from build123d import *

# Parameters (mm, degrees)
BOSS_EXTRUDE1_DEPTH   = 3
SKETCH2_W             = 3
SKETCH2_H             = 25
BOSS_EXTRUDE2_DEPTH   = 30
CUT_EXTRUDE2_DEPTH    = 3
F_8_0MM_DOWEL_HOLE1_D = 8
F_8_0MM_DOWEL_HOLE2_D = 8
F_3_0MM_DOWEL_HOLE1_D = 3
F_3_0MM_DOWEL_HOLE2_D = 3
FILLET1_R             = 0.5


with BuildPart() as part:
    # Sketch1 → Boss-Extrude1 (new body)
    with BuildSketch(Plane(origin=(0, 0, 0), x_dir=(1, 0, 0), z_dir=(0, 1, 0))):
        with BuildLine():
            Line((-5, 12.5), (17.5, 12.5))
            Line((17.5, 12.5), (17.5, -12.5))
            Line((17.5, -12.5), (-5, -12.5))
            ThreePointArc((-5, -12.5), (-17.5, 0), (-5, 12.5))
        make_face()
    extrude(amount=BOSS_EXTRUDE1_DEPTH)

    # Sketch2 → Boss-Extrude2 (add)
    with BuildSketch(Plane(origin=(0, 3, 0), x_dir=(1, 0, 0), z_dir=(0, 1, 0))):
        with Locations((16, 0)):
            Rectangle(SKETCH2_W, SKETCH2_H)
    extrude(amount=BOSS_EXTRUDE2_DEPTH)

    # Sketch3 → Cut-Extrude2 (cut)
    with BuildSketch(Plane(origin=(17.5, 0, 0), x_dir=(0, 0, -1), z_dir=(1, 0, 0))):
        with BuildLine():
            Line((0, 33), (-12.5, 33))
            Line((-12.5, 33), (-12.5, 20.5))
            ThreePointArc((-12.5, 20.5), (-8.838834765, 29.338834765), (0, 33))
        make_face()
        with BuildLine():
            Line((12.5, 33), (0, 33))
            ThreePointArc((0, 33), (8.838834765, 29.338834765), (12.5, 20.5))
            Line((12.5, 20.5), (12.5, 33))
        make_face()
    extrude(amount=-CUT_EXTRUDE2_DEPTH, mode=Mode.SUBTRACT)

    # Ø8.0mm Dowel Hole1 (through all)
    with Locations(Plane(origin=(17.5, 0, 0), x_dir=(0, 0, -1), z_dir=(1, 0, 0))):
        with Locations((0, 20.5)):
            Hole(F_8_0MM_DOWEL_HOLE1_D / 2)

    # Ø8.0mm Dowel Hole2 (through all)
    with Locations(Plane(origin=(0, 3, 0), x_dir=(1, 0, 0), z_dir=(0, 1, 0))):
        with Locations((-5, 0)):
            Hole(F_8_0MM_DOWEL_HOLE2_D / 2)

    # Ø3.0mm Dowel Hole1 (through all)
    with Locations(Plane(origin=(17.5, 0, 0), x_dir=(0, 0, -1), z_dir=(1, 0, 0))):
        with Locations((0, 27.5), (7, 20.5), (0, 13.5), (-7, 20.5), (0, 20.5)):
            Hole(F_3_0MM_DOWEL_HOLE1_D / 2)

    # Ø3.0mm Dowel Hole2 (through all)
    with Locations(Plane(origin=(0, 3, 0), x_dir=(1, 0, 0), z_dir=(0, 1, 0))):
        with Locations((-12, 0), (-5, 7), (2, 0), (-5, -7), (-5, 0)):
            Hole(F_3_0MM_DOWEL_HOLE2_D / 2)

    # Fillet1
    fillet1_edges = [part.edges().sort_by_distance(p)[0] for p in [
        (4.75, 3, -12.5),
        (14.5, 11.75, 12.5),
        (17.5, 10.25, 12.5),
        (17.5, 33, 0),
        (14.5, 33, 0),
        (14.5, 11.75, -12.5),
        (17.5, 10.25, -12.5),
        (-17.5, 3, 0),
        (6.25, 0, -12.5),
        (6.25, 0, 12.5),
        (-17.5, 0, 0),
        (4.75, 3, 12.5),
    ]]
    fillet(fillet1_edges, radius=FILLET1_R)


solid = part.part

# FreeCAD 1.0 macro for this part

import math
import FreeCAD as App
import Part
import Sketcher
from FreeCAD import Vector


def edges_at(feature, points):
    """Names of the edges that pass closest to the given points."""
    edges = feature.Shape.Edges
    near = lambda p: min(range(len(edges)), key=lambda i: edges[i].distToShape(Part.Vertex(*p))[0])
    return sorted({f"Edge{near(p) + 1}" for p in points})

doc = App.newDocument("Part")
params = doc.addObject("Spreadsheet::Sheet", "Params")
for row, (alias, value) in enumerate([
    ("sketch1_radius", "12.5 mm"),
    ("sketch1_width", "22.5 mm"),
    ("pad1_length", "3 mm"),
    ("sketch2_width", "3 mm"),
    ("sketch2_height", "25 mm"),
    ("pad2_length", "30 mm"),
    ("sketch3_radius", "12.5 mm"),
    ("pocket1_length", "3 mm"),
    ("sketch4_diameter", "8 mm"),
    ("hole_diameter", "8 mm"),
    ("sketch5_diameter", "8 mm"),
    ("hole2_diameter", "8 mm"),
    ("sketch6_diameter", "3 mm"),
    ("hole3_diameter", "3 mm"),
    ("sketch7_diameter", "3 mm"),
    ("hole4_diameter", "3 mm"),
    ("fillet_radius", "0.5 mm"),
], start=1):
    params.set(f"A{row}", alias)
    params.set(f"B{row}", "=" + value)
    params.setAlias(f"B{row}", alias)

body = doc.addObject("PartDesign::Body", "Body")

sketch1 = body.newObject("Sketcher::SketchObject", "Sketch")
sketch1.AttachmentSupport = (doc.getObject("XZ_Plane"), [""])
sketch1.MapMode = "FlatFace"
sketch1.addGeometry([
    Part.LineSegment(Vector(18, -12, 0), Vector(-5, -12, 0)),
    Part.ArcOfCircle(Part.Circle(Vector(-5, 0, 0), Vector(0, 0, 1), 12), math.radians(90), math.radians(270)),
    Part.LineSegment(Vector(-5, 12, 0), Vector(18, 12, 0)),
    Part.LineSegment(Vector(18, 12, 0), Vector(18, -12, 0)),
], False)
sketch1.addConstraint([
    Sketcher.Constraint("Tangent", 0, 2, 1, 2),
    Sketcher.Constraint("Tangent", 1, 1, 2, 1),
    Sketcher.Constraint("Coincident", 2, 2, 3, 1),
    Sketcher.Constraint("Coincident", 3, 2, 0, 1),
    Sketcher.Constraint("Horizontal", 0),
    Sketcher.Constraint("Horizontal", 2),
    Sketcher.Constraint("Vertical", 3),
    Sketcher.Constraint("PointOnObject", 1, 3, -1),
    Sketcher.Constraint("Radius", 1, 12.5),
    Sketcher.Constraint("DistanceX", 0, 2, 0, 1, 22.5),
    Sketcher.Constraint("DistanceX", 1, 3, -1, 1, 5.0),
])
sketch1.setExpression("Constraints[8]", "Params.sketch1_radius")
sketch1.setExpression("Constraints[9]", "Params.sketch1_width")
pad1 = body.newObject("PartDesign::Pad", "Pad")
pad1.Profile = sketch1
pad1.setExpression("Length", "Params.pad1_length")
pad1.Reversed = True

sketch2 = body.newObject("Sketcher::SketchObject", "Sketch001")
sketch2.AttachmentSupport = (doc.getObject("XZ_Plane"), [""])
sketch2.MapMode = "FlatFace"
sketch2.AttachmentOffset = App.Placement(Vector(0, 0, -3), App.Rotation())
sketch2.addGeometry([
    Part.LineSegment(Vector(14.5, -12.5, 0), Vector(14.5, 12.5, 0)),
    Part.LineSegment(Vector(14.5, 12.5, 0), Vector(17.5, 12.5, 0)),
    Part.LineSegment(Vector(17.5, 12.5, 0), Vector(17.5, -12.5, 0)),
    Part.LineSegment(Vector(17.5, -12.5, 0), Vector(14.5, -12.5, 0)),
], False)
sketch2.addConstraint([
    Sketcher.Constraint("Coincident", 0, 2, 1, 1),
    Sketcher.Constraint("Coincident", 1, 2, 2, 1),
    Sketcher.Constraint("Coincident", 2, 2, 3, 1),
    Sketcher.Constraint("Coincident", 3, 2, 0, 1),
    Sketcher.Constraint("Vertical", 0),
    Sketcher.Constraint("Horizontal", 1),
    Sketcher.Constraint("Vertical", 2),
    Sketcher.Constraint("Horizontal", 3),
    Sketcher.Constraint("DistanceX", 1, 1, 1, 2, 3.0),
    Sketcher.Constraint("DistanceY", 0, 1, 0, 2, 25.0),
    Sketcher.Constraint("DistanceX", -1, 1, 0, 2, 14.5),
    Sketcher.Constraint("DistanceY", -1, 1, 0, 2, 12.5),
])
sketch2.setExpression("Constraints[8]", "Params.sketch2_width")
sketch2.setExpression("Constraints[9]", "Params.sketch2_height")
pad2 = body.newObject("PartDesign::Pad", "Pad001")
pad2.Profile = sketch2
pad2.setExpression("Length", "Params.pad2_length")
pad2.Reversed = True

sketch3 = body.newObject("Sketcher::SketchObject", "Sketch002")
sketch3.AttachmentSupport = (doc.getObject("YZ_Plane"), [""])
sketch3.MapMode = "FlatFace"
sketch3.AttachmentOffset = App.Placement(Vector(0, 0, 17.5), App.Rotation())
sketch3.addGeometry([
    Part.LineSegment(Vector(33, 0, 0), Vector(33, 12, 0)),
    Part.LineSegment(Vector(33, 12, 0), Vector(20, 12, 0)),
    Part.ArcOfCircle(Part.Circle(Vector(21, 0, 0), Vector(0, 0, 1), 12), math.radians(0), math.radians(90)),
    Part.LineSegment(Vector(33, -12, 0), Vector(33, 0, 0)),
    Part.ArcOfCircle(Part.Circle(Vector(21, 0, 0), Vector(0, 0, 1), 12), math.radians(-90), math.radians(0)),
    Part.LineSegment(Vector(20, -12, 0), Vector(33, -12, 0)),
], False)
sketch3.addConstraint([
    Sketcher.Constraint("Coincident", 0, 2, 1, 1),
    Sketcher.Constraint("Tangent", 1, 2, 2, 2),
    Sketcher.Constraint("Tangent", 2, 1, 0, 1),
    Sketcher.Constraint("Tangent", 3, 2, 4, 2),
    Sketcher.Constraint("Tangent", 4, 1, 5, 1),
    Sketcher.Constraint("Coincident", 5, 2, 3, 1),
    Sketcher.Constraint("Vertical", 0),
    Sketcher.Constraint("Horizontal", 1),
    Sketcher.Constraint("Vertical", 3),
    Sketcher.Constraint("Horizontal", 5),
    Sketcher.Constraint("Coincident", 4, 3, 2, 3),
    Sketcher.Constraint("Equal", 2, 4),
    Sketcher.Constraint("PointOnObject", 2, 3, -1),
    Sketcher.Constraint("Radius", 2, 12.5),
    Sketcher.Constraint("DistanceX", -1, 1, 0, 2, 33.0),
])
sketch3.setExpression("Constraints[13]", "Params.sketch3_radius")
pocket1 = body.newObject("PartDesign::Pocket", "Pocket")
pocket1.Profile = sketch3
pocket1.setExpression("Length", "Params.pocket1_length")

sketch4 = body.newObject("Sketcher::SketchObject", "Sketch003")
sketch4.AttachmentSupport = (doc.getObject("YZ_Plane"), [""])
sketch4.MapMode = "FlatFace"
sketch4.AttachmentOffset = App.Placement(Vector(0, 0, 17.5), App.Rotation())
sketch4.addGeometry(Part.Circle(Vector(20.5, 0, 0), Vector(0, 0, 1), 4), False)
sketch4.addConstraint([
    Sketcher.Constraint("PointOnObject", 0, 3, -1),
    Sketcher.Constraint("Diameter", 0, 8.0),
    Sketcher.Constraint("DistanceX", -1, 1, 0, 3, 20.5),
])
sketch4.setExpression("Constraints[1]", "Params.sketch4_diameter")
doc.recompute()
hole = body.newObject("PartDesign::Hole", "Hole")
hole.Profile = sketch4
hole.ThreadType = "None"
hole.setExpression("Diameter", "Params.hole_diameter")
hole.DepthType = "ThroughAll"

sketch5 = body.newObject("Sketcher::SketchObject", "Sketch004")
sketch5.AttachmentSupport = (doc.getObject("XZ_Plane"), [""])
sketch5.MapMode = "FlatFace"
sketch5.AttachmentOffset = App.Placement(Vector(0, 0, -3), App.Rotation())
sketch5.addGeometry(Part.Circle(Vector(-5, 0, 0), Vector(0, 0, 1), 4), False)
sketch5.addConstraint([
    Sketcher.Constraint("PointOnObject", 0, 3, -1),
    Sketcher.Constraint("Diameter", 0, 8.0),
    Sketcher.Constraint("DistanceX", 0, 3, -1, 1, 5.0),
])
sketch5.setExpression("Constraints[1]", "Params.sketch5_diameter")
doc.recompute()
hole2 = body.newObject("PartDesign::Hole", "Hole001")
hole2.Profile = sketch5
hole2.ThreadType = "None"
hole2.setExpression("Diameter", "Params.hole2_diameter")
hole2.DepthType = "ThroughAll"
hole2.Reversed = True

sketch6 = body.newObject("Sketcher::SketchObject", "Sketch005")
sketch6.AttachmentSupport = (doc.getObject("YZ_Plane"), [""])
sketch6.MapMode = "FlatFace"
sketch6.AttachmentOffset = App.Placement(Vector(0, 0, 17.5), App.Rotation())
sketch6.addGeometry([
    Part.Circle(Vector(27.5, 0, 0), Vector(0, 0, 1), 1.5),
    Part.Circle(Vector(20.5, -7, 0), Vector(0, 0, 1), 1.5),
    Part.Circle(Vector(13.5, 0, 0), Vector(0, 0, 1), 1.5),
    Part.Circle(Vector(20.5, 7, 0), Vector(0, 0, 1), 1.5),
    Part.Circle(Vector(20.5, 0, 0), Vector(0, 0, 1), 1.5),
], False)
sketch6.addConstraint([
    Sketcher.Constraint("Equal", 0, 1),
    Sketcher.Constraint("Equal", 1, 2),
    Sketcher.Constraint("Equal", 2, 3),
    Sketcher.Constraint("Equal", 3, 4),
    Sketcher.Constraint("Symmetric", 1, 3, 3, 3, -1),
    Sketcher.Constraint("PointOnObject", 0, 3, -1),
    Sketcher.Constraint("PointOnObject", 2, 3, -1),
    Sketcher.Constraint("PointOnObject", 4, 3, -1),
    Sketcher.Constraint("Vertical", 3, 3, 4, 3),
    Sketcher.Constraint("Diameter", 0, 3.0),
    Sketcher.Constraint("DistanceY", 1, 3, -1, 1, 7.0),
    Sketcher.Constraint("DistanceX", 1, 3, 0, 3, 7.0),
    Sketcher.Constraint("DistanceX", 2, 3, 1, 3, 7.0),
    Sketcher.Constraint("DistanceX", -1, 1, 0, 3, 27.5),
])
sketch6.setExpression("Constraints[9]", "Params.sketch6_diameter")
doc.recompute()
hole3 = body.newObject("PartDesign::Hole", "Hole002")
hole3.Profile = sketch6
hole3.ThreadType = "None"
hole3.setExpression("Diameter", "Params.hole3_diameter")
hole3.DepthType = "ThroughAll"

sketch7 = body.newObject("Sketcher::SketchObject", "Sketch006")
sketch7.AttachmentSupport = (doc.getObject("XZ_Plane"), [""])
sketch7.MapMode = "FlatFace"
sketch7.AttachmentOffset = App.Placement(Vector(0, 0, -3), App.Rotation())
sketch7.addGeometry([
    Part.Circle(Vector(-12, 0, 0), Vector(0, 0, 1), 1.5),
    Part.Circle(Vector(-5, -7, 0), Vector(0, 0, 1), 1.5),
    Part.Circle(Vector(2, 0, 0), Vector(0, 0, 1), 1.5),
    Part.Circle(Vector(-5, 7, 0), Vector(0, 0, 1), 1.5),
    Part.Circle(Vector(-5, 0, 0), Vector(0, 0, 1), 1.5),
], False)
sketch7.addConstraint([
    Sketcher.Constraint("Equal", 0, 1),
    Sketcher.Constraint("Equal", 1, 2),
    Sketcher.Constraint("Equal", 2, 3),
    Sketcher.Constraint("Equal", 3, 4),
    Sketcher.Constraint("Symmetric", 1, 3, 3, 3, -1),
    Sketcher.Constraint("PointOnObject", 0, 3, -1),
    Sketcher.Constraint("PointOnObject", 2, 3, -1),
    Sketcher.Constraint("PointOnObject", 4, 3, -1),
    Sketcher.Constraint("Vertical", 3, 3, 4, 3),
    Sketcher.Constraint("Diameter", 0, 3.0),
    Sketcher.Constraint("DistanceX", 0, 3, -1, 1, 12.0),
    Sketcher.Constraint("DistanceX", 1, 3, -1, 1, 5.0),
    Sketcher.Constraint("DistanceY", 1, 3, -1, 1, 7.0),
    Sketcher.Constraint("DistanceX", -1, 1, 2, 3, 2.0),
])
sketch7.setExpression("Constraints[9]", "Params.sketch7_diameter")
doc.recompute()
hole4 = body.newObject("PartDesign::Hole", "Hole003")
hole4.Profile = sketch7
hole4.ThreadType = "None"
hole4.setExpression("Diameter", "Params.hole4_diameter")
hole4.DepthType = "ThroughAll"
hole4.Reversed = True
doc.recompute()

fillet = body.newObject("PartDesign::Fillet", "Fillet")
fillet.Base = (hole4, edges_at(hole4, [
    (4.75, 3, -12.5),
    (14.5, 11.75, 12.5),
    (17.5, 10.25, 12.5),
    (16, 33, 0),
    (14.5, 29.339, 8.839),
    (14.5, 11.75, -12.5),
    (17.5, 10.25, -12.5),
    (-17.5, 3, 0),
    (6.25, 0, -12.5),
    (6.25, 0, 12.5),
    (-17.5, 0, 0),
    (4.75, 3, 12.5),
]))
fillet.setExpression("Radius", "Params.fillet_radius")

doc.recompute()
